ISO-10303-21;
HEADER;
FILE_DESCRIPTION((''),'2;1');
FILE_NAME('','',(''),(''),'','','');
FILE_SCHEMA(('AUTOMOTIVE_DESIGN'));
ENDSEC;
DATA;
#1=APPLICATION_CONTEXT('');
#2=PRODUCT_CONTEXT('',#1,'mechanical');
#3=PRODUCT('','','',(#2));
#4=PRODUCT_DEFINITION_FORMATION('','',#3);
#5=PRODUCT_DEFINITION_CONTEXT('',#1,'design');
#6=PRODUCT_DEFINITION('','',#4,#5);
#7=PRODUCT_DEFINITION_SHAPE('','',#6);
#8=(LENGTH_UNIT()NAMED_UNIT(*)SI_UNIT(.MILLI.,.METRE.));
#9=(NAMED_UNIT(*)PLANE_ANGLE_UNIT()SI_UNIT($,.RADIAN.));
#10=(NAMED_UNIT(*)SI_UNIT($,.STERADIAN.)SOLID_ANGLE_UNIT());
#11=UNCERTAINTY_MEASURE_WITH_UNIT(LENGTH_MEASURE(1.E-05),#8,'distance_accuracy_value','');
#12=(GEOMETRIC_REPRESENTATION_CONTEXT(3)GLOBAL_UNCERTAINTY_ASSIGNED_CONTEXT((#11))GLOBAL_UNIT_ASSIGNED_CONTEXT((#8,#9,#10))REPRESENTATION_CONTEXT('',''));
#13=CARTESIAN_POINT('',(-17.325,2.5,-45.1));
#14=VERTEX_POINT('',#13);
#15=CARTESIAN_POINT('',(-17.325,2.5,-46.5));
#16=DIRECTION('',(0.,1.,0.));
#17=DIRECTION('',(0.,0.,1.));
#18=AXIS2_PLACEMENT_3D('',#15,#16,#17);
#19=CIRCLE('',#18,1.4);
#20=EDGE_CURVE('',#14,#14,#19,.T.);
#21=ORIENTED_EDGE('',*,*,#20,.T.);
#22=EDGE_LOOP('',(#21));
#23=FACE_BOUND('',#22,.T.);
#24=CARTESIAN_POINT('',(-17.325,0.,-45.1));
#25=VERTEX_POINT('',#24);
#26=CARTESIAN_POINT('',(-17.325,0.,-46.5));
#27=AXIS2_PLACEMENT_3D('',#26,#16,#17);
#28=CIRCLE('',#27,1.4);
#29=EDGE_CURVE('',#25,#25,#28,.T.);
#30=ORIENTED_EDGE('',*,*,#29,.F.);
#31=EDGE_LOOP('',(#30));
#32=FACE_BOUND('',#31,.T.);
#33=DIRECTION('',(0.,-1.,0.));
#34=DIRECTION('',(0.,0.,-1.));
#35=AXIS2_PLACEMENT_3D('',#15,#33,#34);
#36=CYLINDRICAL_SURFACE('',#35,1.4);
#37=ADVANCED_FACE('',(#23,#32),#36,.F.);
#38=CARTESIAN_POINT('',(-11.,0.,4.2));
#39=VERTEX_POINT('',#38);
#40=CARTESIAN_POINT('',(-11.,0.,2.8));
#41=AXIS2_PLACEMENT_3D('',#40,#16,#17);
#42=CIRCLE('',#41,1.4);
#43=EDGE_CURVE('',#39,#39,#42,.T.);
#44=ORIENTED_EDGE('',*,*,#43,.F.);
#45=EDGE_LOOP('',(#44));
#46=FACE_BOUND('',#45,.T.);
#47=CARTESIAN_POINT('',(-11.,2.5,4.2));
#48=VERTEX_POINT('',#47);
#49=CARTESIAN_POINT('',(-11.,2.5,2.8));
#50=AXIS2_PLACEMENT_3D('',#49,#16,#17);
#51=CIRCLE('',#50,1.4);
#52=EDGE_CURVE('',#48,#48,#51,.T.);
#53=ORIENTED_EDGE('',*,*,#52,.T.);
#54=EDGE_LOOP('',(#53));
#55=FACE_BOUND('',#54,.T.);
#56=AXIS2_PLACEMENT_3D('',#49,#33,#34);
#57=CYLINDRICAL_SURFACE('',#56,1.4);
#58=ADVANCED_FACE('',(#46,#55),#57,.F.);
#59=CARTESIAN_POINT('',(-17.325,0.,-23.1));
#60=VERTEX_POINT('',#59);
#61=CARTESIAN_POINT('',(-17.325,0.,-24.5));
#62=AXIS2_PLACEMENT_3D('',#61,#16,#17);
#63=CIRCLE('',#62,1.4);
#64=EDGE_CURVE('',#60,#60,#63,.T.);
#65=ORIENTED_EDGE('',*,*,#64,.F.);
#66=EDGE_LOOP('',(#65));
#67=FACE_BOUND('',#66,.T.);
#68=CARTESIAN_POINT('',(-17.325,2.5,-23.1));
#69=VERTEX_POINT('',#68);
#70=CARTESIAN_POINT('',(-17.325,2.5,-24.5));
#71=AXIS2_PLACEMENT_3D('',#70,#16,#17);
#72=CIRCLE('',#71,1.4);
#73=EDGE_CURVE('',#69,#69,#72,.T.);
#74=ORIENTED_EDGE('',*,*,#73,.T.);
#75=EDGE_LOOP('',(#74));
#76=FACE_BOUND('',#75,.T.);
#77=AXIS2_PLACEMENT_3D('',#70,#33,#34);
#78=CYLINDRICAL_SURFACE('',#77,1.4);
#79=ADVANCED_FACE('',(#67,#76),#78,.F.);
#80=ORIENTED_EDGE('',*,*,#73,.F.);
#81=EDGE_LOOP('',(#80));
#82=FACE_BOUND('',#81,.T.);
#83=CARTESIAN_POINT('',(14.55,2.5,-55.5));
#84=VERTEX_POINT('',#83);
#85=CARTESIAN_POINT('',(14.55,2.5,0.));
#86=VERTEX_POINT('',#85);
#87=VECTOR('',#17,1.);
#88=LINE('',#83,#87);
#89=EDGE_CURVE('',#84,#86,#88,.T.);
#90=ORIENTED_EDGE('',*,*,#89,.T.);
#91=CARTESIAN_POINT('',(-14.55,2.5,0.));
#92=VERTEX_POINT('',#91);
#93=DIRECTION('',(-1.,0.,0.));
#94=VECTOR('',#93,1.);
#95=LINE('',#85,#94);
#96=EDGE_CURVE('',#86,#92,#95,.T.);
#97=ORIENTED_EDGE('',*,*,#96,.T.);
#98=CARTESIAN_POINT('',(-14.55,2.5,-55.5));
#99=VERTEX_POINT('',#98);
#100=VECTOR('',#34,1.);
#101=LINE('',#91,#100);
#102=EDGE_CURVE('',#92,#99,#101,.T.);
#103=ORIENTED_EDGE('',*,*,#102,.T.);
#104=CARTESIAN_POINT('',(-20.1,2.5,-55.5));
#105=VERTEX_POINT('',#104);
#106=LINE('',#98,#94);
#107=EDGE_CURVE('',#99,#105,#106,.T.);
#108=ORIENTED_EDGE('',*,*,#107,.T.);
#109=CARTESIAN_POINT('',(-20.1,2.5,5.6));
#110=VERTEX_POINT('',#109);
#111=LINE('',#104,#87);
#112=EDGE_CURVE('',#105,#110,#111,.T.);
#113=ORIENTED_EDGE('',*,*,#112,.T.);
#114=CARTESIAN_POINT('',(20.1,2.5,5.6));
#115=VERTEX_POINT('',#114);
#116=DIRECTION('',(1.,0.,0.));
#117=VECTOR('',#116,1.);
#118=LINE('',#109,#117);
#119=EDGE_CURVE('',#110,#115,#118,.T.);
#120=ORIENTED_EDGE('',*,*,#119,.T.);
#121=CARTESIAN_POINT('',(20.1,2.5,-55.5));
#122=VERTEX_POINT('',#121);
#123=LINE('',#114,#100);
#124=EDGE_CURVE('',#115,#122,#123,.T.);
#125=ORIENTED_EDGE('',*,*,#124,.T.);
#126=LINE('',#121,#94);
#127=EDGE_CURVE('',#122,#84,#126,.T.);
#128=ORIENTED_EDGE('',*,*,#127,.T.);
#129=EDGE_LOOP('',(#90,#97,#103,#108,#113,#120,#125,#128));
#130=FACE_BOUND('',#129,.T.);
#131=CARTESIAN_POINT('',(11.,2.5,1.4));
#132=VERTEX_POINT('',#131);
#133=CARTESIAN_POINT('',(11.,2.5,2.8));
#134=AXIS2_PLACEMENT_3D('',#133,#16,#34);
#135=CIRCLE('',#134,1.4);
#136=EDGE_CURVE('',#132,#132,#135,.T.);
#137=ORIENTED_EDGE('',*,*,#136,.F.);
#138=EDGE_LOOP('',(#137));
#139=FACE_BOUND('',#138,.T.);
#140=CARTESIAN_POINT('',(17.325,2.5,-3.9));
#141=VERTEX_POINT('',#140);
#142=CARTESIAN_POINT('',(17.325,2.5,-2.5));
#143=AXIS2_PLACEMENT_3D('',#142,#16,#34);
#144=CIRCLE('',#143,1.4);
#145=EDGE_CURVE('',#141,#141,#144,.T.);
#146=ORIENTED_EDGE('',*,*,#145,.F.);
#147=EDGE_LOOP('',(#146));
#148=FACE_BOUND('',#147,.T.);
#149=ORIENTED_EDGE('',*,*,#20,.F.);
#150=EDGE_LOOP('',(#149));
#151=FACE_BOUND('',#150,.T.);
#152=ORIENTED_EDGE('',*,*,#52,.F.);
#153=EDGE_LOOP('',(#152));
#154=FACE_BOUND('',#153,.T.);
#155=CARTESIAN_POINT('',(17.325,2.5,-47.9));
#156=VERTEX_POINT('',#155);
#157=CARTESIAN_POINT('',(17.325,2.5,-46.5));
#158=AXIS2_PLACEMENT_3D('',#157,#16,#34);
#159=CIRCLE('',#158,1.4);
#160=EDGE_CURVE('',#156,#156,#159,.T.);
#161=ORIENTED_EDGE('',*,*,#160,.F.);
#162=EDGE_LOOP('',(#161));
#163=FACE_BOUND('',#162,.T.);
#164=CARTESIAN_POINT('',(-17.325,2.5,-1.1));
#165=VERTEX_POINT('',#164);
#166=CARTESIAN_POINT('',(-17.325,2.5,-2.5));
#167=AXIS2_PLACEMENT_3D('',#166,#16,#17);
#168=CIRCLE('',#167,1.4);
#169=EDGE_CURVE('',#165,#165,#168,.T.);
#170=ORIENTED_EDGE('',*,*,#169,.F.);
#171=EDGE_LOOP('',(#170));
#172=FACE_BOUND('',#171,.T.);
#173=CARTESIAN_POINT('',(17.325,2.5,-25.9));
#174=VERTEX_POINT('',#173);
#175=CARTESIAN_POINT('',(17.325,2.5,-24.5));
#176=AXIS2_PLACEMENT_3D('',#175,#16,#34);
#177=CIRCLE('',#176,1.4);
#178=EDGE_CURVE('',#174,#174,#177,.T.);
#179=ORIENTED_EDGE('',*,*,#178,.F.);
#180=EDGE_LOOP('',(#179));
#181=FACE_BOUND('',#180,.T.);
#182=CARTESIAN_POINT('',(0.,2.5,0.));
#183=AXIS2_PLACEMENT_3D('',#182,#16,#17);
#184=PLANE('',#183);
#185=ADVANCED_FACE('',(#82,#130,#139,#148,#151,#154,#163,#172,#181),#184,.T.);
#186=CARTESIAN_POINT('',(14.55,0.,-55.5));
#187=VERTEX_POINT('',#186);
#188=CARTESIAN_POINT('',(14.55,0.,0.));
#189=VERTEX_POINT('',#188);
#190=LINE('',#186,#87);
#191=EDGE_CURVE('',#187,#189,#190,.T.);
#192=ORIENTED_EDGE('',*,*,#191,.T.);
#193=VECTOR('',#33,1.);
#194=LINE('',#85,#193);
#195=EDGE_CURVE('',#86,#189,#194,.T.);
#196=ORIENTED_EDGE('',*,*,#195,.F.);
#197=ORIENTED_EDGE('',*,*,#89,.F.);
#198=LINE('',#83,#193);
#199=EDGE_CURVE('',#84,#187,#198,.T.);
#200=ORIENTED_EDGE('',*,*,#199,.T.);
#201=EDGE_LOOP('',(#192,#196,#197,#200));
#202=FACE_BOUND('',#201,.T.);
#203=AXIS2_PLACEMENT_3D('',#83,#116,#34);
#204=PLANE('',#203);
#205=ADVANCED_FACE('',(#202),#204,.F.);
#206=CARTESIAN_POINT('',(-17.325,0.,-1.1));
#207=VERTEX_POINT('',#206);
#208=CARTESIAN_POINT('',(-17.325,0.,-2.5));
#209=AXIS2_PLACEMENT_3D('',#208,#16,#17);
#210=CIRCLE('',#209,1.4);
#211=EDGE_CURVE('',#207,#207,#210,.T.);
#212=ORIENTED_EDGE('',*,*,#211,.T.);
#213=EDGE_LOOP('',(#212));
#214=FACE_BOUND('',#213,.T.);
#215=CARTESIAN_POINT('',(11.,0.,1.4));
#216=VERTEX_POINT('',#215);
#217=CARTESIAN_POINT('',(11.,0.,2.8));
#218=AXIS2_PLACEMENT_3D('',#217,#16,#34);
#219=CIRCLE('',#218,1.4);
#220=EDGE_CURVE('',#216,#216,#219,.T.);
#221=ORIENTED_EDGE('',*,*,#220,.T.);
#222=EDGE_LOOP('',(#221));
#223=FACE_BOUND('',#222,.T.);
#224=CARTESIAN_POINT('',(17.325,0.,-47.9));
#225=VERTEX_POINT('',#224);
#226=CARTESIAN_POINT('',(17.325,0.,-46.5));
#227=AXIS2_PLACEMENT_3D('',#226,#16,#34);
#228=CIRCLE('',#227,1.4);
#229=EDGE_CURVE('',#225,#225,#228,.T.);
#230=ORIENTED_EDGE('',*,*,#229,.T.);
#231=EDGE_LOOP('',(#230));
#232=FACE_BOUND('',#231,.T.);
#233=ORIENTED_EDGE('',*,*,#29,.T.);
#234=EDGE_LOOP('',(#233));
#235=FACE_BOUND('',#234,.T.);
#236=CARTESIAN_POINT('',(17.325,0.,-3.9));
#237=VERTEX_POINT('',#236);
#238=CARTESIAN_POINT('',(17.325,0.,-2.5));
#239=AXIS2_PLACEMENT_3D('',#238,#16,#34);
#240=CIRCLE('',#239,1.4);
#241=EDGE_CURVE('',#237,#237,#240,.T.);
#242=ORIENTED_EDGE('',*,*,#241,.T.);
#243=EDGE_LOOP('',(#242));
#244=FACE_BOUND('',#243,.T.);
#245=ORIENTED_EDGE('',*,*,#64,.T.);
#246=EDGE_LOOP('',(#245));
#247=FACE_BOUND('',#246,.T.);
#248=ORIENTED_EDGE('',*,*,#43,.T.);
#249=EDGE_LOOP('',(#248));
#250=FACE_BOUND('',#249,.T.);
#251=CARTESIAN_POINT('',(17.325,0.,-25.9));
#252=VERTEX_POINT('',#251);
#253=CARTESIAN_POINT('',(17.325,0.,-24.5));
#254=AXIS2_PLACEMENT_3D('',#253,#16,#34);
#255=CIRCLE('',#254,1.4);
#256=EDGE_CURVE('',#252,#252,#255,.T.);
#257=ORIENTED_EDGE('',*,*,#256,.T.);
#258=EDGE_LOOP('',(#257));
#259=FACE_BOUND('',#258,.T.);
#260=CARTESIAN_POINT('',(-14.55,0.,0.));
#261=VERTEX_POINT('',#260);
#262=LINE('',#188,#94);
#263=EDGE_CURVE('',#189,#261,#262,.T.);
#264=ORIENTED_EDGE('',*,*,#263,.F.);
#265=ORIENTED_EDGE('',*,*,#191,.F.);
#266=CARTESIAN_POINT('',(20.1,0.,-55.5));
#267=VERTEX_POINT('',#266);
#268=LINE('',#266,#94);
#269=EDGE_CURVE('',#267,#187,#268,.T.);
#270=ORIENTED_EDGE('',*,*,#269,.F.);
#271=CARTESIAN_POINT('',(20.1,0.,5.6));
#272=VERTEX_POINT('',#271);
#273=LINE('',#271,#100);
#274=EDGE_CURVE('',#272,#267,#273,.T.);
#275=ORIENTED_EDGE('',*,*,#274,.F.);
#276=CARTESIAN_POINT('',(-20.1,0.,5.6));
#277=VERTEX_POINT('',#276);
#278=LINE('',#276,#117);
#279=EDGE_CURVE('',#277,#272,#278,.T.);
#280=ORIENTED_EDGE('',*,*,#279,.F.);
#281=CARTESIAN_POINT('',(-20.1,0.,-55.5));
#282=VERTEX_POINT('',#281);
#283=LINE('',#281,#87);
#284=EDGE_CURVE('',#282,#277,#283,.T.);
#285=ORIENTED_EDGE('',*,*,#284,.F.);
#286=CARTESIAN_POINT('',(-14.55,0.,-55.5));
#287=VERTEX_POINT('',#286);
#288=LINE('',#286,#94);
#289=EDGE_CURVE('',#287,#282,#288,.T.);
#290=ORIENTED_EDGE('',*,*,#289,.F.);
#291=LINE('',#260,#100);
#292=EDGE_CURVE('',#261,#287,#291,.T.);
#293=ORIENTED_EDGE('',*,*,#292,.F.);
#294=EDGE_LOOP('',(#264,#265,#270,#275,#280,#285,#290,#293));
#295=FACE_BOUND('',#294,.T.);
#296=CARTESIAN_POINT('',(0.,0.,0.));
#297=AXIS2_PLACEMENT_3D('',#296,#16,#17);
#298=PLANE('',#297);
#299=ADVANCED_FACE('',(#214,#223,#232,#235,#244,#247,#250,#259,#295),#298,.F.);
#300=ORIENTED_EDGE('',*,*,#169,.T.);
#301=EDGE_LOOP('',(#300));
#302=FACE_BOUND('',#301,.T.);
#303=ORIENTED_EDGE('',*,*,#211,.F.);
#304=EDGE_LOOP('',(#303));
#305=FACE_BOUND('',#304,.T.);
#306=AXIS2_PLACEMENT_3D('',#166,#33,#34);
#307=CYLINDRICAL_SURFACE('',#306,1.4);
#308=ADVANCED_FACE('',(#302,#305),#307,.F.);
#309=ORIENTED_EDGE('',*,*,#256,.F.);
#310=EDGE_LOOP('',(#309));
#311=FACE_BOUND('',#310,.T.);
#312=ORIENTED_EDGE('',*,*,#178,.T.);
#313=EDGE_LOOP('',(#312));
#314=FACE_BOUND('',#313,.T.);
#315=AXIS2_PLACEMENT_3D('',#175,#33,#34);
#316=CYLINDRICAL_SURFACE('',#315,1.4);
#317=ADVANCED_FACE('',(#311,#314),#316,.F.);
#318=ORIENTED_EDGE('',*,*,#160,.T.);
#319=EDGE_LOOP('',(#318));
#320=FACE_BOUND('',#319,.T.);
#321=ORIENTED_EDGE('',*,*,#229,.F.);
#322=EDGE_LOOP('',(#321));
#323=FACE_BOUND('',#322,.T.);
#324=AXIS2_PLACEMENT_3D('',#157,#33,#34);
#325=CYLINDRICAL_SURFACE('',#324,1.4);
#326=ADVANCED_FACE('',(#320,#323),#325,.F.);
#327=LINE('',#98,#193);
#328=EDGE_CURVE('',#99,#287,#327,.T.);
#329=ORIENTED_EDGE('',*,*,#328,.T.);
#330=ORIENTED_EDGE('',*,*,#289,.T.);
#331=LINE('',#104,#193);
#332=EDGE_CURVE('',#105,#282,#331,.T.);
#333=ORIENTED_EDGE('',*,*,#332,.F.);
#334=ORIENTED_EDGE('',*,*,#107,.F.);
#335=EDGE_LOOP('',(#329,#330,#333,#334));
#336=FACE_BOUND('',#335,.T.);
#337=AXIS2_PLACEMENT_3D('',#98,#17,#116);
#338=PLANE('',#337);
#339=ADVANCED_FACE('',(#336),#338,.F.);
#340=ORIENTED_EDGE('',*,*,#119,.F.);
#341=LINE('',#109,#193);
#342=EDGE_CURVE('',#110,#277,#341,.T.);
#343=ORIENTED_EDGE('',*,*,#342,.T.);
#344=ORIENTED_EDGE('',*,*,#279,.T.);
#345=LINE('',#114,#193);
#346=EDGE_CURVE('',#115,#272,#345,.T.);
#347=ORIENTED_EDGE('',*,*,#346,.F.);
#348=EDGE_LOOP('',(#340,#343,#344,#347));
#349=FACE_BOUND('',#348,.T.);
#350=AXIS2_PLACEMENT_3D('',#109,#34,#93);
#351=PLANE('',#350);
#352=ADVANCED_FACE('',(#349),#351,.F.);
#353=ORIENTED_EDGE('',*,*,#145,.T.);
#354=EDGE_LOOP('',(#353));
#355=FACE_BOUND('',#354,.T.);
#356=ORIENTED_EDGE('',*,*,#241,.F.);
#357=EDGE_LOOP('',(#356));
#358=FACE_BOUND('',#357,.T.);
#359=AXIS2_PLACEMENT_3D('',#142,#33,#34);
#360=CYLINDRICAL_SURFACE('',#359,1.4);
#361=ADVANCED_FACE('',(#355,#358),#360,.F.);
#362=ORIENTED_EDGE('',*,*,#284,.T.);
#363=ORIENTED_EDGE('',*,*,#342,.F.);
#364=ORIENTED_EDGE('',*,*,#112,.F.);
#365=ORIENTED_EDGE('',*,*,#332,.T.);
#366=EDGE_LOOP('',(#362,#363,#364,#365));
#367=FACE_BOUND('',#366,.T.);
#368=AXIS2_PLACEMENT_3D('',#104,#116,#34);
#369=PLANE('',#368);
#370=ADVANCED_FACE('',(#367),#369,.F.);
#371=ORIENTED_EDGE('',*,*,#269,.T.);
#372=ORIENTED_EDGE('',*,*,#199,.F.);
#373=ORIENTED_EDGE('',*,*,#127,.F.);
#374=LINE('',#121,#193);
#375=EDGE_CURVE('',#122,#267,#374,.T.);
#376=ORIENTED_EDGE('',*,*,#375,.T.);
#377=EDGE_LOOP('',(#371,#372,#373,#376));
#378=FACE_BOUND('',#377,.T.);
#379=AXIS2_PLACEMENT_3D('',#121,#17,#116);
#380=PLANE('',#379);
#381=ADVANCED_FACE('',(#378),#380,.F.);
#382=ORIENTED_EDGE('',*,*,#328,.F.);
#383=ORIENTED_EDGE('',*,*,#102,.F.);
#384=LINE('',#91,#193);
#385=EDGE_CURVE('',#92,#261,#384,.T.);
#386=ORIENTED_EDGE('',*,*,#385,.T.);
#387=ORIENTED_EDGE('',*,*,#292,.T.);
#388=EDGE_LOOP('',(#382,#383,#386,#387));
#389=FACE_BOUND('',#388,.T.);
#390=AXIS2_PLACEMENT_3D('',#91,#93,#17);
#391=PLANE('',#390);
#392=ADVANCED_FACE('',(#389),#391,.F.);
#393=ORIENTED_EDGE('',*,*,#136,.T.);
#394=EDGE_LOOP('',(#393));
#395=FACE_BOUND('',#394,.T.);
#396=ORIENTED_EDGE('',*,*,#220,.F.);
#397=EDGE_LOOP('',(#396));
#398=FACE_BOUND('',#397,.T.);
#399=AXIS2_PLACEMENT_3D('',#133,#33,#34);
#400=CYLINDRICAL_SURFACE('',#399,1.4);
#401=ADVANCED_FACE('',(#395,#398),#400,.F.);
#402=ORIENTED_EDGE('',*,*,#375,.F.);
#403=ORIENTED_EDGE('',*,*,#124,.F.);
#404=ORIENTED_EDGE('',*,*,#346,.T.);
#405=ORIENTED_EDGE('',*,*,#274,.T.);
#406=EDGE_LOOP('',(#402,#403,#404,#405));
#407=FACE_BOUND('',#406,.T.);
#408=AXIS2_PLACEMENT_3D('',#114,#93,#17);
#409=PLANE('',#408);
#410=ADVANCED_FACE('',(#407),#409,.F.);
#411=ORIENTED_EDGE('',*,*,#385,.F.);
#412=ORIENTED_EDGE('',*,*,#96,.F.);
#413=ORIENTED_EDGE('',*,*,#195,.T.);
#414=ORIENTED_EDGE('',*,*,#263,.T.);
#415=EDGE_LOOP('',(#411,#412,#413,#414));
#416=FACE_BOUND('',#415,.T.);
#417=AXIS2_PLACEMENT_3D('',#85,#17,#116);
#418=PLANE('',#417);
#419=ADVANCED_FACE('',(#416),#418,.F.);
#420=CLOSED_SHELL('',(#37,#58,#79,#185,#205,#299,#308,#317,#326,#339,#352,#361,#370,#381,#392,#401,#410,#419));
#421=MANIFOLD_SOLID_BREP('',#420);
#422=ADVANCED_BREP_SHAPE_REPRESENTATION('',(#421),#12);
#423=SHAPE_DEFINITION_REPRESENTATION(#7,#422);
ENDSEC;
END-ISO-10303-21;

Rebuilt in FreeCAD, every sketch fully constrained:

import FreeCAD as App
import Part
import Sketcher

V = App.Vector


def add_polygon(sketch, points):
    """Adds a closed chain of lines whose ends are joined by coincident constraints."""
    first, n = sketch.GeometryCount, len(points)
    for a, b in zip(points, points[1:] + points[:1]):
        sketch.addGeometry(Part.LineSegment(App.Vector(*a, 0), App.Vector(*b, 0)), False)
    for i in range(n):
        sketch.addConstraint(Sketcher.Constraint("Coincident", first + i, 2, first + (i + 1) % n, 1))

doc = App.newDocument("Part")
body = doc.addObject("PartDesign::Body", "Body")

# Sketch on XZ plane
sketch1 = body.newObject("Sketcher::SketchObject", "Sketch")
sketch1.AttachmentSupport = (doc.getObject("XZ_Plane"), [""])
sketch1.MapMode = "FlatFace"
add_polygon(sketch1, [(-20.1, -55.5), (-20.1, 5.6), (20.1, 5.6), (20.1, -55.5), (14.6, -55.5), (14.6, 0), (-14.6, 0), (-14.6, -55.5)])  # lines 0-7
sketch1.addGeometry(Part.Circle(V(-11, 2.8, 0), V(0, 0, 1), 1.4), False)  # 8
sketch1.addGeometry(Part.Circle(V(-17.3, -2.5, 0), V(0, 0, 1), 1.4), False)  # 9
sketch1.addGeometry(Part.Circle(V(11, 2.8, 0), V(0, 0, 1), 1.4), False)  # 10
sketch1.addGeometry(Part.Circle(V(17.3, -2.5, 0), V(0, 0, 1), 1.4), False)  # 11
sketch1.addGeometry(Part.Circle(V(-17.3, -24.5, 0), V(0, 0, 1), 1.4), False)  # 12
sketch1.addGeometry(Part.Circle(V(-17.3, -46.5, 0), V(0, 0, 1), 1.4), False)  # 13
sketch1.addGeometry(Part.Circle(V(17.3, -24.5, 0), V(0, 0, 1), 1.4), False)  # 14
sketch1.addGeometry(Part.Circle(V(17.3, -46.5, 0), V(0, 0, 1), 1.4), False)  # 15
sketch1.addConstraint(Sketcher.Constraint("Vertical", 0))
sketch1.addConstraint(Sketcher.Constraint("Horizontal", 1))
sketch1.addConstraint(Sketcher.Constraint("Vertical", 2))
sketch1.addConstraint(Sketcher.Constraint("Horizontal", 3))
sketch1.addConstraint(Sketcher.Constraint("Vertical", 4))
sketch1.addConstraint(Sketcher.Constraint("Horizontal", 5))
sketch1.addConstraint(Sketcher.Constraint("Vertical", 6))
sketch1.addConstraint(Sketcher.Constraint("Horizontal", 7))
sketch1.addConstraint(Sketcher.Constraint("Equal", 8, 9))
sketch1.addConstraint(Sketcher.Constraint("Equal", 9, 10))
sketch1.addConstraint(Sketcher.Constraint("Equal", 10, 11))
sketch1.addConstraint(Sketcher.Constraint("Equal", 11, 12))
sketch1.addConstraint(Sketcher.Constraint("Equal", 12, 13))
sketch1.addConstraint(Sketcher.Constraint("Equal", 13, 14))
sketch1.addConstraint(Sketcher.Constraint("Equal", 14, 15))
sketch1.addConstraint(Sketcher.Constraint("Symmetric", 4, 2, 5, 2, -1, 1))
sketch1.addConstraint(Sketcher.Constraint("Symmetric", 8, 3, 10, 3, -2))
sketch1.addConstraint(Sketcher.Constraint("Symmetric", 9, 3, 11, 3, -2))
sketch1.addConstraint(Sketcher.Constraint("Symmetric", 12, 3, 14, 3, -2))
sketch1.addConstraint(Sketcher.Constraint("Symmetric", 13, 3, 15, 3, -2))
sketch1.addConstraint(Sketcher.Constraint("Symmetric", 2, 2, 7, 2, -2))
sketch1.addConstraint(Sketcher.Constraint("Vertical", 9, 3, 12, 3))
sketch1.addConstraint(Sketcher.Constraint("Vertical", 12, 3, 13, 3))
sketch1.addConstraint(Sketcher.Constraint("Diameter", 8, 2.8))
sketch1.addConstraint(Sketcher.Constraint("DistanceX", 1, 1, 1, 2, 40.2))
sketch1.addConstraint(Sketcher.Constraint("DistanceX", 5, 2, 5, 1, 29.1))
sketch1.addConstraint(Sketcher.Constraint("DistanceY", 0, 1, 0, 2, 61.1))
sketch1.addConstraint(Sketcher.Constraint("DistanceY", 4, 1, 4, 2, 55.5))
sketch1.addConstraint(Sketcher.Constraint("DistanceX", 8, 3, -1, 1, 11.0))
sketch1.addConstraint(Sketcher.Constraint("DistanceY", 12, 3, 9, 3, 22.0))
sketch1.addConstraint(Sketcher.Constraint("DistanceY", 13, 3, 12, 3, 22.0))
sketch1.addConstraint(Sketcher.Constraint("DistanceY", 2, 2, 15, 3, 9.0))
sketch1.addConstraint(Sketcher.Constraint("DistanceY", -1, 1, 8, 3, 2.8))
sketch1.addConstraint(Sketcher.Constraint("DistanceX", 9, 3, 11, 3, 34.65))
pad1 = body.newObject("PartDesign::Pad", "Pad")
pad1.Profile = sketch1
pad1.Length = 2.5
pad1.Reversed = True

doc.recompute()
